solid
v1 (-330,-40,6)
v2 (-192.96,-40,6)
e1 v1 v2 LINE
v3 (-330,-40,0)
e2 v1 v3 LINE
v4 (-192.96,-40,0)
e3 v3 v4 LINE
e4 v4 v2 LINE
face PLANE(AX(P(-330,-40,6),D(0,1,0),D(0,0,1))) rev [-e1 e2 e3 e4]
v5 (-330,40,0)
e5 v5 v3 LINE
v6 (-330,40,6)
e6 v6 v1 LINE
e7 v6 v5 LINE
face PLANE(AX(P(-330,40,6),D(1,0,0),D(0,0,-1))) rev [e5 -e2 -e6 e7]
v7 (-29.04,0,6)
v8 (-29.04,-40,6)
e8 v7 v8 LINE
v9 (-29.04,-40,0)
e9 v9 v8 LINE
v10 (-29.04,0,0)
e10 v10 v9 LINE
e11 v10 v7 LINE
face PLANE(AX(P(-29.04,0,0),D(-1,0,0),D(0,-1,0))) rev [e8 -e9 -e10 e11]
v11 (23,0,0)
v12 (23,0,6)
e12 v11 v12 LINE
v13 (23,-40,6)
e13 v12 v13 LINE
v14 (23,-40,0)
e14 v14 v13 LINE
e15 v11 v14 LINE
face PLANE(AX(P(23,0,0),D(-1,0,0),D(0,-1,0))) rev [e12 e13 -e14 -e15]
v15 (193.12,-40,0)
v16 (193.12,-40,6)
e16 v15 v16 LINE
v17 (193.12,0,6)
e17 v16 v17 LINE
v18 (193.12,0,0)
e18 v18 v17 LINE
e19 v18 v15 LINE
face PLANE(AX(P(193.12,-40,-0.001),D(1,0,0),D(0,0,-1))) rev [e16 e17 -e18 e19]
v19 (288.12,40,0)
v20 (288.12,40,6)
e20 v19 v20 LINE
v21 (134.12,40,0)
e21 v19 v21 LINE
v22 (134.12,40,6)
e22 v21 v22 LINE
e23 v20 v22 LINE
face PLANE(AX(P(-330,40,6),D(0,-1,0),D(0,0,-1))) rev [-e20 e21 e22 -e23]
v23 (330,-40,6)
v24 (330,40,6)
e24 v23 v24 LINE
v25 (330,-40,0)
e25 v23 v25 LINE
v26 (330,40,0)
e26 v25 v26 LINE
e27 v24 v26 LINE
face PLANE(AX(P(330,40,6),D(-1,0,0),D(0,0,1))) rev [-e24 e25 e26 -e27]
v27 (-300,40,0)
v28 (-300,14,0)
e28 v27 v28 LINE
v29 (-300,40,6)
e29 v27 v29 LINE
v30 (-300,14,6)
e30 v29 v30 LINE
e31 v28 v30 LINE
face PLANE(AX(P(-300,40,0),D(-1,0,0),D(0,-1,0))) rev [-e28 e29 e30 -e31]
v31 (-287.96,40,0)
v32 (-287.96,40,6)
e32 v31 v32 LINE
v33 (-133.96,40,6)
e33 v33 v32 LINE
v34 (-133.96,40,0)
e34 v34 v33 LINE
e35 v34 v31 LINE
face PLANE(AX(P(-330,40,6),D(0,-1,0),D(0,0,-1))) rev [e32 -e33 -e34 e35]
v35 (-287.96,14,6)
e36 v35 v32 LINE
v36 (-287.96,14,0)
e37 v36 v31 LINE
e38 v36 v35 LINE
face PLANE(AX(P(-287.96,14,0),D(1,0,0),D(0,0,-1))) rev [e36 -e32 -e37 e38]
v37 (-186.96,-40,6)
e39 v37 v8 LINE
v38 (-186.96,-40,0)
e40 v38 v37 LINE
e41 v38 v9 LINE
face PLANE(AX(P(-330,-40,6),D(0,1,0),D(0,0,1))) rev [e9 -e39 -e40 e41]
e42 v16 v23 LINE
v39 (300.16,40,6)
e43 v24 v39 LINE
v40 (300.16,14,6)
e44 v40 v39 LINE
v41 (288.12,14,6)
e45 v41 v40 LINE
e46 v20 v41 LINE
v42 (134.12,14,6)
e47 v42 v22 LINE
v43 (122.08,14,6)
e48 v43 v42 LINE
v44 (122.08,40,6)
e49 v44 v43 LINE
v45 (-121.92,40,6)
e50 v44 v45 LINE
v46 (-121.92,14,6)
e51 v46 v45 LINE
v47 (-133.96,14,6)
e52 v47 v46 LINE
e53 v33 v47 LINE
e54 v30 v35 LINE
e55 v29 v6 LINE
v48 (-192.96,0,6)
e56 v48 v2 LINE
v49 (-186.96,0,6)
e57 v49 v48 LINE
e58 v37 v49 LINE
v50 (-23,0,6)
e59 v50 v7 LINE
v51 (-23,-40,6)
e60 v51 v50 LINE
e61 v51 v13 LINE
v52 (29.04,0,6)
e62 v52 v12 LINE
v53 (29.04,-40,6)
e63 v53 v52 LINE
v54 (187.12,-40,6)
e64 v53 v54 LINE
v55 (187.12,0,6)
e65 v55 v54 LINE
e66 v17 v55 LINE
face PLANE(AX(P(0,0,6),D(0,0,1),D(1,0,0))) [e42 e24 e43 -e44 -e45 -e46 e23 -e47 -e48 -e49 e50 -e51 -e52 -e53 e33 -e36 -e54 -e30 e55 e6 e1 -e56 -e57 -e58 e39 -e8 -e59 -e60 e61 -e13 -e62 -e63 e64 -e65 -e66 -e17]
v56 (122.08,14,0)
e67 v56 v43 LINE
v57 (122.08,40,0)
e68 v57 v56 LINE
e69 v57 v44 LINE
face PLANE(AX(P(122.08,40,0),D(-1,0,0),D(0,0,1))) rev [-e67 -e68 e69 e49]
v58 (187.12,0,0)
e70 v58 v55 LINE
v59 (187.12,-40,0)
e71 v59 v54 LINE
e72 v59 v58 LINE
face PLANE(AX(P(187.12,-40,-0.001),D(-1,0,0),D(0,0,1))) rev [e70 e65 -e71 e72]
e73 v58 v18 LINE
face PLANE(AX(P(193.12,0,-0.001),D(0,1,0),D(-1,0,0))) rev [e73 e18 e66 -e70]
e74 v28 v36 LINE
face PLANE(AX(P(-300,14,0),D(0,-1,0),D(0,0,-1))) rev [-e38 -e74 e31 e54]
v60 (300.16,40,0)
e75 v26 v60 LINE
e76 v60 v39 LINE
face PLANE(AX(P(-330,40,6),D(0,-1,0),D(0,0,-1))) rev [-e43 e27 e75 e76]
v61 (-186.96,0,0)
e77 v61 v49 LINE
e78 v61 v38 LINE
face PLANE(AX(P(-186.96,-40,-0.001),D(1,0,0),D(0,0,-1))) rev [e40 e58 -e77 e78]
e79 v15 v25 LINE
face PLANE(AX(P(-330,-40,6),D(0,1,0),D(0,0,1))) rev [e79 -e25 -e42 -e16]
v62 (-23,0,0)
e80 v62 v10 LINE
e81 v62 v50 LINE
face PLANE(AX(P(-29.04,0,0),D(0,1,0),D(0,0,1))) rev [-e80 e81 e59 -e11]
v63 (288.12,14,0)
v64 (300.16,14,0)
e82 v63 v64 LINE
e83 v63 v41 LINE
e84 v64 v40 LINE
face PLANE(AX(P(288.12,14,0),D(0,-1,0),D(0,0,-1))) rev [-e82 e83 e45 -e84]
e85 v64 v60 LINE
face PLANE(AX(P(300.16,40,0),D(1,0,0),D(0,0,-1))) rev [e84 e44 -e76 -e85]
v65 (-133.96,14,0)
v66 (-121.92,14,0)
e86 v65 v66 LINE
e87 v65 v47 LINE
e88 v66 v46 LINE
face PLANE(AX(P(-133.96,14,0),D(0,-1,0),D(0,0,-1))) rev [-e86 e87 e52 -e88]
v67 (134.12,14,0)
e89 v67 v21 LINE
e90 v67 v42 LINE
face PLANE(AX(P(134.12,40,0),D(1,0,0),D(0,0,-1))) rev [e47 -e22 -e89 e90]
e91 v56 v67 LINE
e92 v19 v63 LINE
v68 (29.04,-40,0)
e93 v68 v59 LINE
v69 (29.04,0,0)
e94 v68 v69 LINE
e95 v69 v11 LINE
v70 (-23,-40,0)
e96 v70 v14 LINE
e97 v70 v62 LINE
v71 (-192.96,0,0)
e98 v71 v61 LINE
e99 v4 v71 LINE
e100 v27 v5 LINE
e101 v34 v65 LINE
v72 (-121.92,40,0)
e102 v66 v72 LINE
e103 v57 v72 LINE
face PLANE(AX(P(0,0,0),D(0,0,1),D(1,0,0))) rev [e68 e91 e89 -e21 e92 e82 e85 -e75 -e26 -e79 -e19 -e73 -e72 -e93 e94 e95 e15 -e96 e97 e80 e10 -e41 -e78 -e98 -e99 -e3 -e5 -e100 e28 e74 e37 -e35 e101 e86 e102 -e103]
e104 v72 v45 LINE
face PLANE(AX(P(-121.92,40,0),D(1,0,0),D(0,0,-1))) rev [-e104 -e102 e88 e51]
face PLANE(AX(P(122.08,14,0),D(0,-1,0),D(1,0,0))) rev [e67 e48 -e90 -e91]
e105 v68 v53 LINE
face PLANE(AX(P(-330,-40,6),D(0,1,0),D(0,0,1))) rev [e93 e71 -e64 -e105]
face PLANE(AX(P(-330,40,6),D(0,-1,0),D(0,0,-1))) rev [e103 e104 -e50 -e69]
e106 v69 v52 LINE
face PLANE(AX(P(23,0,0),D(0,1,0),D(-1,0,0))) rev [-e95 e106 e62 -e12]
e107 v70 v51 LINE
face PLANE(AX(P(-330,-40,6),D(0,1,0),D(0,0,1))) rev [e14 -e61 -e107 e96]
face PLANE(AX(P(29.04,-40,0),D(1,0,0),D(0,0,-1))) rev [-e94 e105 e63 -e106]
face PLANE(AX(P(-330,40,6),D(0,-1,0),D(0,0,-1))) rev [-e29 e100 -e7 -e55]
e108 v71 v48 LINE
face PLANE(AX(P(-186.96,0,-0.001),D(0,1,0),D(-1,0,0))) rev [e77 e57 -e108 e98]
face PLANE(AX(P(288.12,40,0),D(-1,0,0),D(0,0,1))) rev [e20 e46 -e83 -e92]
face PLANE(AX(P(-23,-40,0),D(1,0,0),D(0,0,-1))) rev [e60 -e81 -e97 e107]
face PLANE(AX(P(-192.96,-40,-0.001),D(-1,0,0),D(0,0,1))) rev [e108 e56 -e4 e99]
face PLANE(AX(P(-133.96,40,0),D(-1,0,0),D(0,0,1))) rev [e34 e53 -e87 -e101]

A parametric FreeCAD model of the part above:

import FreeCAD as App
import Part
import Sketcher

V = App.Vector
Q = App.Units.Quantity

doc = App.newDocument("Part")
body = doc.addObject("PartDesign::Body", "Body")

# Sketch on XY plane
sketch1 = body.newObject("Sketcher::SketchObject", "Sketch")
sketch1.AttachmentSupport = (doc.getObject("XY_Plane"), [""])
sketch1.MapMode = "FlatFace"
sketch1.addGeometry([
    Part.LineSegment(V(-330, 40, 0), V(-330, -40, 0)),
    Part.LineSegment(V(-330, -40, 0), V(330, -40, 0)),
    Part.LineSegment(V(330, -40, 0), V(330, 40, 0)),
    Part.LineSegment(V(330, 40, 0), V(-330, 40, 0)),
], False)
sketch1.addConstraint([
    Sketcher.Constraint("Coincident", 0, 2, 1, 1),
    Sketcher.Constraint("Coincident", 1, 2, 2, 1),
    Sketcher.Constraint("Coincident", 2, 2, 3, 1),
    Sketcher.Constraint("Coincident", 3, 2, 0, 1),
    Sketcher.Constraint("Vertical", 0),
    Sketcher.Constraint("Horizontal", 1),
    Sketcher.Constraint("Vertical", 2),
    Sketcher.Constraint("Horizontal", 3),
    Sketcher.Constraint("Symmetric", 0, 2, 2, 2, -1, 1),
    Sketcher.Constraint("DistanceX", 1, 1, 1, 2, Q("660 mm")),
    Sketcher.Constraint("DistanceY", 0, 2, 0, 1, Q("80 mm")),
])
pad1 = body.newObject("PartDesign::Pad", "Pad")
pad1.Profile = sketch1
pad1.Length = 6

# Sketch on XY plane
sketch2 = body.newObject("Sketcher::SketchObject", "Sketch001")
sketch2.AttachmentSupport = (doc.getObject("XY_Plane"), [""])
sketch2.MapMode = "FlatFace"
sketch2.AttachmentOffset = App.Placement(V(0, 0, 6), App.Rotation())
sketch2.addGeometry([
    Part.LineSegment(V(-300, 40, 0), V(-300, 14, 0)),  # 0
    Part.LineSegment(V(-300, 14, 0), V(-287.96, 14, 0)),  # 1
    Part.LineSegment(V(-287.96, 14, 0), V(-287.96, 40, 0)),  # 2
    Part.LineSegment(V(-287.96, 40, 0), V(-300, 40, 0)),  # 3
    Part.LineSegment(V(-133.96, 40, 0), V(-133.96, 14, 0)),  # 4
    Part.LineSegment(V(-133.96, 14, 0), V(-121.92, 14, 0)),  # 5
    Part.LineSegment(V(-121.92, 14, 0), V(-121.92, 40, 0)),  # 6
    Part.LineSegment(V(-121.92, 40, 0), V(-133.96, 40, 0)),  # 7
    Part.LineSegment(V(122.08, 40, 0), V(122.08, 14, 0)),  # 8
    Part.LineSegment(V(122.08, 14, 0), V(134.12, 14, 0)),  # 9
    Part.LineSegment(V(134.12, 14, 0), V(134.12, 40, 0)),  # 10
    Part.LineSegment(V(134.12, 40, 0), V(122.08, 40, 0)),  # 11
    Part.LineSegment(V(288.12, 40, 0), V(288.12, 14, 0)),  # 12
    Part.LineSegment(V(288.12, 14, 0), V(300.16, 14, 0)),  # 13
    Part.LineSegment(V(300.16, 14, 0), V(300.16, 40, 0)),  # 14
    Part.LineSegment(V(300.16, 40, 0), V(288.12, 40, 0)),  # 15
], False)
sketch2.addConstraint([
    Sketcher.Constraint("Coincident", 0, 2, 1, 1),
    Sketcher.Constraint("Coincident", 1, 2, 2, 1),
    Sketcher.Constraint("Coincident", 2, 2, 3, 1),
    Sketcher.Constraint("Coincident", 3, 2, 0, 1),
    Sketcher.Constraint("Coincident", 4, 2, 5, 1),
    Sketcher.Constraint("Coincident", 5, 2, 6, 1),
    Sketcher.Constraint("Coincident", 6, 2, 7, 1),
    Sketcher.Constraint("Coincident", 7, 2, 4, 1),
    Sketcher.Constraint("Coincident", 8, 2, 9, 1),
    Sketcher.Constraint("Coincident", 9, 2, 10, 1),
    Sketcher.Constraint("Coincident", 10, 2, 11, 1),
    Sketcher.Constraint("Coincident", 11, 2, 8, 1),
    Sketcher.Constraint("Coincident", 12, 2, 13, 1),
    Sketcher.Constraint("Coincident", 13, 2, 14, 1),
    Sketcher.Constraint("Coincident", 14, 2, 15, 1),
    Sketcher.Constraint("Coincident", 15, 2, 12, 1),
    Sketcher.Constraint("Vertical", 0),
    Sketcher.Constraint("Horizontal", 1),
    Sketcher.Constraint("Vertical", 2),
    Sketcher.Constraint("Horizontal", 3),
    Sketcher.Constraint("Vertical", 4),
    Sketcher.Constraint("Horizontal", 5),
    Sketcher.Constraint("Vertical", 6),
    Sketcher.Constraint("Horizontal", 7),
    Sketcher.Constraint("Vertical", 8),
    Sketcher.Constraint("Horizontal", 9),
    Sketcher.Constraint("Vertical", 10),
    Sketcher.Constraint("Horizontal", 11),
    Sketcher.Constraint("Vertical", 12),
    Sketcher.Constraint("Horizontal", 13),
    Sketcher.Constraint("Vertical", 14),
    Sketcher.Constraint("Horizontal", 15),
    Sketcher.Constraint("Horizontal", 1, 2, 4, 2),
    Sketcher.Constraint("Horizontal", 3, 2, 6, 2),
    Sketcher.Constraint("Horizontal", 5, 2, 8, 2),
    Sketcher.Constraint("Horizontal", 7, 2, 10, 2),
    Sketcher.Constraint("Horizontal", 9, 2, 12, 2),
    Sketcher.Constraint("Horizontal", 11, 2, 14, 2),
    Sketcher.Constraint("Equal", 3, 5),
    Sketcher.Constraint("Equal", 7, 9),
    Sketcher.Constraint("Equal", 11, 13),
    Sketcher.Constraint("DistanceY", 0, 2, 0, 1, Q("26 mm")),
    Sketcher.Constraint("DistanceX", 0, 2, -1, 1, Q("300 mm")),
    Sketcher.Constraint("DistanceY", -1, 1, 0, 2, Q("14 mm")),
    Sketcher.Constraint("DistanceX", 1, 2, 4, 2, Q("154 mm")),
    Sketcher.Constraint("DistanceX", 5, 2, 8, 2, Q("244 mm")),
    Sketcher.Constraint("DistanceX", 9, 2, 12, 2, Q("154 mm")),
    Sketcher.Constraint("DistanceX", 1, 1, 1, 2, Q("12.04 mm")),
])
pocket1 = body.newObject("PartDesign::Pocket", "Pocket")
pocket1.Profile = sketch2
pocket1.Type = "ThroughAll"

# Sketch on XY plane
sketch3 = body.newObject("Sketcher::SketchObject", "Sketch002")
sketch3.AttachmentSupport = (doc.getObject("XY_Plane"), [""])
sketch3.MapMode = "FlatFace"
sketch3.AttachmentOffset = App.Placement(V(0, 0, 6), App.Rotation())
sketch3.addGeometry([
    Part.LineSegment(V(-29.04, 0, 0), V(-29.04, -40, 0)),  # 0
    Part.LineSegment(V(-29.04, -40, 0), V(-23, -40, 0)),  # 1
    Part.LineSegment(V(-23, -40, 0), V(-23, 0, 0)),  # 2
    Part.LineSegment(V(-23, 0, 0), V(-29.04, 0, 0)),  # 3
    Part.LineSegment(V(23, 0, 0), V(23, -40, 0)),  # 4
    Part.LineSegment(V(23, -40, 0), V(29.04, -40, 0)),  # 5
    Part.LineSegment(V(29.04, -40, 0), V(29.04, 0, 0)),  # 6
    Part.LineSegment(V(29.04, 0, 0), V(23, 0, 0)),  # 7
], False)
sketch3.addConstraint([
    Sketcher.Constraint("Coincident", 0, 2, 1, 1),
    Sketcher.Constraint("Coincident", 1, 2, 2, 1),
    Sketcher.Constraint("Coincident", 2, 2, 3, 1),
    Sketcher.Constraint("Coincident", 3, 2, 0, 1),
    Sketcher.Constraint("Coincident", 4, 2, 5, 1),
    Sketcher.Constraint("Coincident", 5, 2, 6, 1),
    Sketcher.Constraint("Coincident", 6, 2, 7, 1),
    Sketcher.Constraint("Coincident", 7, 2, 4, 1),
    Sketcher.Constraint("Vertical", 0),
    Sketcher.Constraint("Horizontal", 1),
    Sketcher.Constraint("Vertical", 2),
    Sketcher.Constraint("Horizontal", 3),
    Sketcher.Constraint("Vertical", 4),
    Sketcher.Constraint("Horizontal", 5),
    Sketcher.Constraint("Vertical", 6),
    Sketcher.Constraint("Horizontal", 7),
    Sketcher.Constraint("Symmetric", 3, 2, 6, 2, -1, 1),
    Sketcher.Constraint("Symmetric", 1, 2, 4, 2, -2),
    Sketcher.Constraint("PointOnObject", 2, 2, -1),
    Sketcher.Constraint("DistanceY", 0, 2, 0, 1, Q("40 mm")),
    Sketcher.Constraint("DistanceX", 1, 2, -1, 1, Q("23 mm")),
    Sketcher.Constraint("DistanceX", 1, 1, 1, 2, Q("6.04 mm")),
])
pocket2 = body.newObject("PartDesign::Pocket", "Pocket001")
pocket2.Profile = sketch3
pocket2.Type = "ThroughAll"

# Sketch on XY plane
sketch4 = body.newObject("Sketcher::SketchObject", "Sketch003")
sketch4.AttachmentSupport = (doc.getObject("XY_Plane"), [""])
sketch4.MapMode = "FlatFace"
sketch4.AttachmentOffset = App.Placement(V(0, 0, 6), App.Rotation())
sketch4.addGeometry([
    Part.LineSegment(V(-192.96, 0, 0), V(-192.96, -40, 0)),
    Part.LineSegment(V(-192.96, -40, 0), V(-186.96, -40, 0)),
    Part.LineSegment(V(-186.96, -40, 0), V(-186.96, 0, 0)),
    Part.LineSegment(V(-186.96, 0, 0), V(-192.96, 0, 0)),
], False)
sketch4.addConstraint([
    Sketcher.Constraint("Coincident", 0, 2, 1, 1),
    Sketcher.Constraint("Coincident", 1, 2, 2, 1),
    Sketcher.Constraint("Coincident", 2, 2, 3, 1),
    Sketcher.Constraint("Coincident", 3, 2, 0, 1),
    Sketcher.Constraint("Vertical", 0),
    Sketcher.Constraint("Horizontal", 1),
    Sketcher.Constraint("Vertical", 2),
    Sketcher.Constraint("Horizontal", 3),
    Sketcher.Constraint("PointOnObject", 2, 2, -1),
    Sketcher.Constraint("DistanceX", 1, 1, 1, 2, Q("6 mm")),
    Sketcher.Constraint("DistanceY", 0, 2, 0, 1, Q("40 mm")),
    Sketcher.Constraint("DistanceX", 0, 2, -1, 1, Q("192.96 mm")),
])
pocket3 = body.newObject("PartDesign::Pocket", "Pocket002")
pocket3.Profile = sketch4
pocket3.Type = "UpToFirst"

# Sketch on XY plane
sketch5 = body.newObject("Sketcher::SketchObject", "Sketch004")
sketch5.AttachmentSupport = (doc.getObject("XY_Plane"), [""])
sketch5.MapMode = "FlatFace"
sketch5.AttachmentOffset = App.Placement(V(0, 0, 6), App.Rotation())
sketch5.addGeometry([
    Part.LineSegment(V(187.12, 0, 0), V(187.12, -40, 0)),
    Part.LineSegment(V(187.12, -40, 0), V(193.12, -40, 0)),
    Part.LineSegment(V(193.12, -40, 0), V(193.12, 0, 0)),
    Part.LineSegment(V(193.12, 0, 0), V(187.12, 0, 0)),
], False)
sketch5.addConstraint([
    Sketcher.Constraint("Coincident", 0, 2, 1, 1),
    Sketcher.Constraint("Coincident", 1, 2, 2, 1),
    Sketcher.Constraint("Coincident", 2, 2, 3, 1),
    Sketcher.Constraint("Coincident", 3, 2, 0, 1),
    Sketcher.Constraint("Vertical", 0),
    Sketcher.Constraint("Horizontal", 1),
    Sketcher.Constraint("Vertical", 2),
    Sketcher.Constraint("Horizontal", 3),
    Sketcher.Constraint("PointOnObject", 2, 2, -1),
    Sketcher.Constraint("DistanceX", 1, 1, 1, 2, Q("6 mm")),
    Sketcher.Constraint("DistanceY", 0, 2, 0, 1, Q("40 mm")),
    Sketcher.Constraint("DistanceX", -1, 1, 0, 2, Q("187.12 mm")),
])
pocket4 = body.newObject("PartDesign::Pocket", "Pocket003")
pocket4.Profile = sketch5
pocket4.Type = "UpToFirst"

doc.recompute()
